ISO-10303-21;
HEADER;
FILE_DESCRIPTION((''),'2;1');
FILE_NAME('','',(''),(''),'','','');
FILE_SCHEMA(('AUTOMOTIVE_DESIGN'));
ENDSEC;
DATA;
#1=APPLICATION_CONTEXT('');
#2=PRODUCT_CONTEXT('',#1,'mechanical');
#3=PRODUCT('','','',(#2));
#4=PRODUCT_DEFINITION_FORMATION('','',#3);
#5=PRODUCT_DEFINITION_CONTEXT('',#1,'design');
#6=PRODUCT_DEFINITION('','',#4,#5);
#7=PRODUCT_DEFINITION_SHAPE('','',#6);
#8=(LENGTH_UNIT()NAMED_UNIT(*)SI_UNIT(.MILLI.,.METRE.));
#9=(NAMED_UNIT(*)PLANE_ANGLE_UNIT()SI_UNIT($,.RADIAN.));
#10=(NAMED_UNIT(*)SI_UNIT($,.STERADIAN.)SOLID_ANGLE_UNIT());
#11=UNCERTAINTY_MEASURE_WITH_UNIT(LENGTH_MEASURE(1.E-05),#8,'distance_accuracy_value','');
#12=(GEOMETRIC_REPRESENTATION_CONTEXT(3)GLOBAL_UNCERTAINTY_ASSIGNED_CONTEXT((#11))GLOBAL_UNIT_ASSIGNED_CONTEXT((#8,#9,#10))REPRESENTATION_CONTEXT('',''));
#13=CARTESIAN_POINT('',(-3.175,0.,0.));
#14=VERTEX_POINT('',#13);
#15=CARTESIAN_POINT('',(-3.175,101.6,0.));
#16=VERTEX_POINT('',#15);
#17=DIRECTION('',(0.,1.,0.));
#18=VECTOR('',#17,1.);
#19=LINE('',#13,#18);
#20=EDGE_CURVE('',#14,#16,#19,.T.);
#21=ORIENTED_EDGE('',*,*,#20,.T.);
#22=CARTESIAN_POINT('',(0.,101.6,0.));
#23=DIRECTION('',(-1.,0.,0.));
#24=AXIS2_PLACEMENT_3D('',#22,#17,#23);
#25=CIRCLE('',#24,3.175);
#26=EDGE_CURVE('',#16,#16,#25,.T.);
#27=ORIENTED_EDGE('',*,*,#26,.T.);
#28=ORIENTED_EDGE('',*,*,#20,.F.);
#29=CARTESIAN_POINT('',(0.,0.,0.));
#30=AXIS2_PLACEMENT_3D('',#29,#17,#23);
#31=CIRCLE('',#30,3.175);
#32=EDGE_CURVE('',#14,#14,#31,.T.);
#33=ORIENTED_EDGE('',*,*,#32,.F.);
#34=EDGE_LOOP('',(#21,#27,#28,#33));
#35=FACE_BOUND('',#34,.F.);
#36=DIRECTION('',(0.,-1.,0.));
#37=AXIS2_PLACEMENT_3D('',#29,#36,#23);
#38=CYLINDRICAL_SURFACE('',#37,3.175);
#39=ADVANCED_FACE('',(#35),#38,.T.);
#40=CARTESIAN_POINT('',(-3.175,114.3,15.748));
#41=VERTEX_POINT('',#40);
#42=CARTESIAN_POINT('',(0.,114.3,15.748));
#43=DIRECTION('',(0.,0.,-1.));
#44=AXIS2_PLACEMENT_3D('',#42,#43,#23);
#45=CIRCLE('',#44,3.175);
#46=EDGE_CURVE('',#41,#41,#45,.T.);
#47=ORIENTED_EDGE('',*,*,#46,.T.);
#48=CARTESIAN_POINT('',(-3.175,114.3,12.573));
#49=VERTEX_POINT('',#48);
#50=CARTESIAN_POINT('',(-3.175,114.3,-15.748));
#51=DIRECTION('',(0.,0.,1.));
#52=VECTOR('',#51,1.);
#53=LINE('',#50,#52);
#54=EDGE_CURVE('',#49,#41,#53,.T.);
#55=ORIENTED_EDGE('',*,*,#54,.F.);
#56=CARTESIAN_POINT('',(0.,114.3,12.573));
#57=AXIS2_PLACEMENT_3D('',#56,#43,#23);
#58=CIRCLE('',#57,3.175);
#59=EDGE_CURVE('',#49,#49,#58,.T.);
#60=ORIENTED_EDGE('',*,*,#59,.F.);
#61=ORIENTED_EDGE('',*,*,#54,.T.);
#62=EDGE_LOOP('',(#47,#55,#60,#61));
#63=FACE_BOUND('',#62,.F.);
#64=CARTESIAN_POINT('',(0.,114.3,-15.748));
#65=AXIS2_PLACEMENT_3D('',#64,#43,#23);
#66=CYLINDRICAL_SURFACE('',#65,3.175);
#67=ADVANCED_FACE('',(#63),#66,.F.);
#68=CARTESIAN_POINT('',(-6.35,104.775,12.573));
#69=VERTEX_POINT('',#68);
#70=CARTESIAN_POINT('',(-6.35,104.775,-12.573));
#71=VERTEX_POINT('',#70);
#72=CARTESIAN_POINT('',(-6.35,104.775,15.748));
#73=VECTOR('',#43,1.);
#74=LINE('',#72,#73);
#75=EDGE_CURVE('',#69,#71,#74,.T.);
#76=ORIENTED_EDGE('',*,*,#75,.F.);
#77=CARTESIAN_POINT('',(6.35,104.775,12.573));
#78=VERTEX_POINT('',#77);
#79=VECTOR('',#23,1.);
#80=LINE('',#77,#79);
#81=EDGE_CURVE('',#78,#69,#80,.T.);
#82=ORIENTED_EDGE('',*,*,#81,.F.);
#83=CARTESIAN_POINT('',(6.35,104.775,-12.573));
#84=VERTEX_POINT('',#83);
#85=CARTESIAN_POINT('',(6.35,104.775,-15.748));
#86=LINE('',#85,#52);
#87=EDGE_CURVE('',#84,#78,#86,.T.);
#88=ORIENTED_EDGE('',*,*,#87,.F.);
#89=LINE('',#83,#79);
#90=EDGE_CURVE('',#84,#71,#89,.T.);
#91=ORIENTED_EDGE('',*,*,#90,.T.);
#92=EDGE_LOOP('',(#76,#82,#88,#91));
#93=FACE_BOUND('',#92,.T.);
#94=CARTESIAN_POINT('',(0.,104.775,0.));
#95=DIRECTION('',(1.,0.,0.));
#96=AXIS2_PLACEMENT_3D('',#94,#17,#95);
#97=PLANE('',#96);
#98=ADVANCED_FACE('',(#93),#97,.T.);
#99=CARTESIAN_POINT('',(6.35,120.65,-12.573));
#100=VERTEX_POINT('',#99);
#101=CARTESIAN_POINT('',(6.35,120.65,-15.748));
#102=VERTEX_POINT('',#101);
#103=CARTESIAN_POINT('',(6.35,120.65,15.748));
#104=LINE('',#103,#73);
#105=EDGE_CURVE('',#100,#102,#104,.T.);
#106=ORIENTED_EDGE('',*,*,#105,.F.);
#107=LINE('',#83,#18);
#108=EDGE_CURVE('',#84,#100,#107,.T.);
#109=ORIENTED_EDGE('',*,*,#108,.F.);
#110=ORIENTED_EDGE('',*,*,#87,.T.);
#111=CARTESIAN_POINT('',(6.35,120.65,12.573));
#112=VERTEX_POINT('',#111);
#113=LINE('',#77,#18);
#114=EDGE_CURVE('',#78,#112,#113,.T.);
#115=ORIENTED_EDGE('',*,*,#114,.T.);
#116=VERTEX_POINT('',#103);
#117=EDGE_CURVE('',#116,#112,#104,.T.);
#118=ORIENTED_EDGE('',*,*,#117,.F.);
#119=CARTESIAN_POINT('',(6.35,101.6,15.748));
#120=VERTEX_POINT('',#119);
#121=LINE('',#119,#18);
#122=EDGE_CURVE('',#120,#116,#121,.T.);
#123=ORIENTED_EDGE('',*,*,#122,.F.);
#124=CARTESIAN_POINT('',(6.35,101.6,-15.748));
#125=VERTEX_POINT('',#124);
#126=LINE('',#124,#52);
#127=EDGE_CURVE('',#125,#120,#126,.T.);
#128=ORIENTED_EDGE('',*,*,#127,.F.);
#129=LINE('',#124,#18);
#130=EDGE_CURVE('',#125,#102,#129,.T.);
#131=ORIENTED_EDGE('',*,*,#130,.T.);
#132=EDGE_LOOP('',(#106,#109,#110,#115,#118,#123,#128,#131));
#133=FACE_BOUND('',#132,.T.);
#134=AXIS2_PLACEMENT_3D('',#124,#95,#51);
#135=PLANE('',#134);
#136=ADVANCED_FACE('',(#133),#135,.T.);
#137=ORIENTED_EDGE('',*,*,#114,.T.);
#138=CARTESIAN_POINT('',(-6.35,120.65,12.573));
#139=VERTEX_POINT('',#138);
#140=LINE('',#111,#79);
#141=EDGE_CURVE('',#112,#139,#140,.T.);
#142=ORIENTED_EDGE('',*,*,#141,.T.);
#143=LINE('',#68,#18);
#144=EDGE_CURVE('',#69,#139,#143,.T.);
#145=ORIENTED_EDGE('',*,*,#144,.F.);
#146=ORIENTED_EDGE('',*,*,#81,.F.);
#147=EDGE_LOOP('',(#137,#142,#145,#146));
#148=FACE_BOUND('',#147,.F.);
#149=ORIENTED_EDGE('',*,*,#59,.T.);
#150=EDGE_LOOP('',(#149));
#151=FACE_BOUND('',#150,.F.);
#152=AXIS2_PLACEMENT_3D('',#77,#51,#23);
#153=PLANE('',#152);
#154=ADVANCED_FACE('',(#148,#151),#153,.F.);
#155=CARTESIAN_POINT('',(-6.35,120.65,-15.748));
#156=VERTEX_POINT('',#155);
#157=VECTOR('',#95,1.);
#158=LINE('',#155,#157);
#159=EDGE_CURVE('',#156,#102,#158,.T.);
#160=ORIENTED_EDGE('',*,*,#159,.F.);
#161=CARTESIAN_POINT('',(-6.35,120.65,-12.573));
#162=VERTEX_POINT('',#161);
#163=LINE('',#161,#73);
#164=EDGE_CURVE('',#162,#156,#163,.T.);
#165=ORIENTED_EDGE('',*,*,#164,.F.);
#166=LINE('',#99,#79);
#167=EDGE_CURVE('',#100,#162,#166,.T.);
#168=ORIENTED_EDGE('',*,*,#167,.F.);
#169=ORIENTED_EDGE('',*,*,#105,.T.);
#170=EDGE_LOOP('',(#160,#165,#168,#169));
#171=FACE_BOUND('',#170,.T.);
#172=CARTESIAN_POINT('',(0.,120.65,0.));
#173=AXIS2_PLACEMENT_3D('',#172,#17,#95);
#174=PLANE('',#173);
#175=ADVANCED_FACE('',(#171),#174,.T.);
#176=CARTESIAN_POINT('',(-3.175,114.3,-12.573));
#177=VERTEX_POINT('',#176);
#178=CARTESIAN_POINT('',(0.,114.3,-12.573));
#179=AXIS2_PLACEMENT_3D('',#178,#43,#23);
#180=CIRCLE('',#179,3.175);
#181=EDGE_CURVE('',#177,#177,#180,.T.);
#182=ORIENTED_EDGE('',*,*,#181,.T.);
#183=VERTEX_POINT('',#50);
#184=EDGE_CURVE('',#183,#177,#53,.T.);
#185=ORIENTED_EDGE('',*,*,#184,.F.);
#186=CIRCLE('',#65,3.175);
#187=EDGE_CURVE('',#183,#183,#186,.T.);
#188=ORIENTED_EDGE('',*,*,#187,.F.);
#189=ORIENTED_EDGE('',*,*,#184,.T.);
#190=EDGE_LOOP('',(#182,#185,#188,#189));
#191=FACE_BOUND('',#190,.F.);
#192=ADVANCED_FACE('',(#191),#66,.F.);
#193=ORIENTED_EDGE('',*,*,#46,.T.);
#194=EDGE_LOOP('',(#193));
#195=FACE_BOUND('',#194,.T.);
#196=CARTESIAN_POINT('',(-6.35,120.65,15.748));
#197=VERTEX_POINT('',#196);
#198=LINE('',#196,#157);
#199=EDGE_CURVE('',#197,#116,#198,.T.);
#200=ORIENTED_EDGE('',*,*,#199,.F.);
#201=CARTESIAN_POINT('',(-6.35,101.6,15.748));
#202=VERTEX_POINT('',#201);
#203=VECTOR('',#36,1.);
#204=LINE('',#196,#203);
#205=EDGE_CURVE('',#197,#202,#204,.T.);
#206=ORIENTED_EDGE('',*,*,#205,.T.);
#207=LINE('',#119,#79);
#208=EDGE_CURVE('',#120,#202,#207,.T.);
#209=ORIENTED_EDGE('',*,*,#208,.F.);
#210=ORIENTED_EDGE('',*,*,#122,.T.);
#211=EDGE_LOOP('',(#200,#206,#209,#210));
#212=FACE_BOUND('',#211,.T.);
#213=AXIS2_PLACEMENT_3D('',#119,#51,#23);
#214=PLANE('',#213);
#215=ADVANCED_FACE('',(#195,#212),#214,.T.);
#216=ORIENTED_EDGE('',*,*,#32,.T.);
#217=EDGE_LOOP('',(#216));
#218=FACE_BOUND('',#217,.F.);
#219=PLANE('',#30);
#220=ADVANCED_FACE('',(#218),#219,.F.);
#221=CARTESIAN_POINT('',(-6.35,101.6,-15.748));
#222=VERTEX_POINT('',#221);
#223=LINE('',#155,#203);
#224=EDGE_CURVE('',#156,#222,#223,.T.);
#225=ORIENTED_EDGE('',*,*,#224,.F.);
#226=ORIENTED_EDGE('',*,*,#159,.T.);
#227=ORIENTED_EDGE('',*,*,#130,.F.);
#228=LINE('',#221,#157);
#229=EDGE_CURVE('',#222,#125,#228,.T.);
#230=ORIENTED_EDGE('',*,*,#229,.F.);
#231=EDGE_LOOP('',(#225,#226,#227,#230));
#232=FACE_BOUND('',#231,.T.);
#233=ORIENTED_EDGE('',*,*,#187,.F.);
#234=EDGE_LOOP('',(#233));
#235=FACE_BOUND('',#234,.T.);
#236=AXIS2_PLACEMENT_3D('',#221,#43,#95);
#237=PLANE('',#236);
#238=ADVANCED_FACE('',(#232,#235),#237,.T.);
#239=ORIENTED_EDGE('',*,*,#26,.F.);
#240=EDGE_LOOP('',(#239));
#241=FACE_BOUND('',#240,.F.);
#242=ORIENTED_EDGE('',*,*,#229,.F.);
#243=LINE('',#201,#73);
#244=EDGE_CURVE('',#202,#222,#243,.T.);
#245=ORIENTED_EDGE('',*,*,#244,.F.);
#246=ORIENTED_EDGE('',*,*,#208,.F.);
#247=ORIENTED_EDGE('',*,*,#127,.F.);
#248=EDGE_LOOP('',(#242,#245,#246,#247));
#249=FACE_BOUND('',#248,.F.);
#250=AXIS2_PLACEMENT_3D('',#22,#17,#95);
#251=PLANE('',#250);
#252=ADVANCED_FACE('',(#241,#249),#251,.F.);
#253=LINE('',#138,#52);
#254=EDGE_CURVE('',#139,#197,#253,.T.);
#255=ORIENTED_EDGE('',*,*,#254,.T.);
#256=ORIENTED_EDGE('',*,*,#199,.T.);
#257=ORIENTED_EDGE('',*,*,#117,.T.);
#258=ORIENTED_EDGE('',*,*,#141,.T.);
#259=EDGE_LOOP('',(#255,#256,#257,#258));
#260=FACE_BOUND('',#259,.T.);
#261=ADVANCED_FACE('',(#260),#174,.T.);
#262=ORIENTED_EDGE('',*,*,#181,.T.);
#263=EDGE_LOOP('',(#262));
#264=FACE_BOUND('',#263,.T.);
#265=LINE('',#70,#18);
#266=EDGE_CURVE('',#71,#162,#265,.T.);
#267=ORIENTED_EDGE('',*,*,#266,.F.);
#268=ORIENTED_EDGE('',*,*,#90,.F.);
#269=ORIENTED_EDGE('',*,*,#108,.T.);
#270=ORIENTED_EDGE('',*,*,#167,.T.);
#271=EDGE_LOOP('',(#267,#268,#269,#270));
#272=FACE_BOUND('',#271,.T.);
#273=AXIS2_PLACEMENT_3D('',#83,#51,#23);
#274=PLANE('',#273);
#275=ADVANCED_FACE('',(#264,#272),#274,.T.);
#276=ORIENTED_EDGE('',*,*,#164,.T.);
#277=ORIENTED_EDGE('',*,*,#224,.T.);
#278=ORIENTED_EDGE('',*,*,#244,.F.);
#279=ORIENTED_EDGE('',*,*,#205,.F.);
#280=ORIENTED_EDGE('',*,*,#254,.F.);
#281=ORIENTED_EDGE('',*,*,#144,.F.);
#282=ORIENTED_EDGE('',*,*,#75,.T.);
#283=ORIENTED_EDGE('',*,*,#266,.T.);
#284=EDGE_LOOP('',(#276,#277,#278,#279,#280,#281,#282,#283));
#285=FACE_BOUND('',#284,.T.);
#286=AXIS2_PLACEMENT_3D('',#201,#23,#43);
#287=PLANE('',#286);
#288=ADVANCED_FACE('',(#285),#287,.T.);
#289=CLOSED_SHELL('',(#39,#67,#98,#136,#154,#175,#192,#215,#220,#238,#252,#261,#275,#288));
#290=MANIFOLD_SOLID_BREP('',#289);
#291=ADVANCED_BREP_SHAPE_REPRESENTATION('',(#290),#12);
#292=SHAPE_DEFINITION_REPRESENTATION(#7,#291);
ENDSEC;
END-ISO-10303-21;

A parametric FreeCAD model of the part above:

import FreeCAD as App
import Part
import Sketcher
Q = App.Units.Quantity


def add_polygon(sketch, points):
    """Adds a closed chain of lines whose ends are joined by coincident constraints."""
    first, n = sketch.GeometryCount, len(points)
    for a, b in zip(points, points[1:] + points[:1]):
        sketch.addGeometry(Part.LineSegment(App.Vector(*a, 0), App.Vector(*b, 0)), False)
    for i in range(n):
        sketch.addConstraint(Sketcher.Constraint("Coincident", first + i, 2, first + (i + 1) % n, 1))

doc = App.newDocument("Part")
params = doc.addObject("Spreadsheet::Sheet", "Params")
for row, (alias, value) in enumerate([
    ("sketch1_diameter", "0.25 in"),
    ("pad1_length", "4 in"),
    ("sketch2_width", "0.5 in"),
    ("sketch2_height", "1.24 in"),
    ("pad2_length", "0.125 in"),
    ("sketch3_height", "0.125 in"),
    ("sketch3_width", "0.5 in"),
    ("pad3_length", "0.625 in"),
    ("sketch4_diameter", "0.25 in"),
    ("pocket1_length", "2 in"),
], start=1):
    params.set(f"A{row}", alias)
    params.set(f"B{row}", "=" + value)
    params.setAlias(f"B{row}", alias)

body = doc.addObject("PartDesign::Body", "Body")

# Sketch on XZ plane
sketch1 = body.newObject("Sketcher::SketchObject", "Sketch")
sketch1.AttachmentSupport = (doc.getObject("XZ_Plane"), [""])
sketch1.MapMode = "FlatFace"
sketch1.addGeometry(Part.Circle(App.Vector(0, 0, 0), App.Vector(0, 0, 1), 3.2), False)
sketch1.addConstraint([
    Sketcher.Constraint("Coincident", 0, 3, -1, 1),
    Sketcher.Constraint("Diameter", 0, Q("0.25 in")),
])
sketch1.setExpression("Constraints[1]", "Params.sketch1_diameter")
pad1 = body.newObject("PartDesign::Pad", "Pad")
pad1.Profile = sketch1
pad1.setExpression("Length", "Params.pad1_length")
pad1.Reversed = True

# Sketch on XZ plane
sketch2 = body.newObject("Sketcher::SketchObject", "Sketch001")
sketch2.AttachmentSupport = (doc.getObject("XZ_Plane"), [""])
sketch2.MapMode = "FlatFace"
sketch2.AttachmentOffset = App.Placement(App.Vector(0, 0, -4 * 25.4), App.Rotation())
add_polygon(sketch2, [(-6, 16), (6, 16), (6, -16), (-6, -16)])  # lines 0-3
sketch2.addConstraint([
    Sketcher.Constraint("Horizontal", 0),
    Sketcher.Constraint("Vertical", 1),
    Sketcher.Constraint("Horizontal", 2),
    Sketcher.Constraint("Vertical", 3),
    Sketcher.Constraint("Symmetric", 0, 2, 2, 2, -1, 1),
    Sketcher.Constraint("DistanceX", 0, 1, 0, 2, Q("0.5 in")),
    Sketcher.Constraint("DistanceY", 1, 2, 1, 1, Q("1.24 in")),
])
sketch2.setExpression("Constraints[9]", "Params.sketch2_width")
sketch2.setExpression("Constraints[10]", "Params.sketch2_height")
pad2 = body.newObject("PartDesign::Pad", "Pad001")
pad2.Profile = sketch2
pad2.setExpression("Length", "Params.pad2_length")
pad2.Reversed = True

# Sketch on XZ plane
sketch3 = body.newObject("Sketcher::SketchObject", "Sketch002")
sketch3.AttachmentSupport = (doc.getObject("XZ_Plane"), [""])
sketch3.MapMode = "FlatFace"
sketch3.AttachmentOffset = App.Placement(App.Vector(0, 0, -4.125 * 25.4), App.Rotation())
add_polygon(sketch3, [(-6.3, 15.7), (6.3, 15.7), (6.3, 12.6), (-6.3, 12.6)])  # lines 0-3
add_polygon(sketch3, [(-6.3, -12.6), (6.3, -12.6), (6.3, -15.7), (-6.3, -15.7)])  # lines 4-7
sketch3.addConstraint([
    Sketcher.Constraint("Horizontal", 0),
    Sketcher.Constraint("Vertical", 1),
    Sketcher.Constraint("Horizontal", 2),
    Sketcher.Constraint("Vertical", 3),
    Sketcher.Constraint("Horizontal", 4),
    Sketcher.Constraint("Vertical", 5),
    Sketcher.Constraint("Horizontal", 6),
    Sketcher.Constraint("Vertical", 7),
    Sketcher.Constraint("Symmetric", 2, 2, 4, 2, -1, 1),
    Sketcher.Constraint("Symmetric", 0, 2, 6, 2, -1, 1),
    Sketcher.Constraint("Vertical", 1, 2, 4, 2),
    Sketcher.Constraint("DistanceY", 1, 2, 1, 1, Q("0.125 in")),
    Sketcher.Constraint("DistanceX", 0, 1, 0, 2, Q("0.5 in")),
    Sketcher.Constraint("DistanceY", -1, 1, 0, 2, Q("0.62 in")),
])
sketch3.setExpression("Constraints[19]", "Params.sketch3_height")
sketch3.setExpression("Constraints[20]", "Params.sketch3_width")
pad3 = body.newObject("PartDesign::Pad", "Pad002")
pad3.Profile = sketch3
pad3.setExpression("Length", "Params.pad3_length")
pad3.Reversed = True

# Sketch on XY plane
sketch4 = body.newObject("Sketcher::SketchObject", "Sketch003")
sketch4.AttachmentSupport = (doc.getObject("XY_Plane"), [""])
sketch4.MapMode = "FlatFace"
sketch4.AttachmentOffset = App.Placement(App.Vector(0, 0, -0.62 * 25.4), App.Rotation())
sketch4.addGeometry(Part.Circle(App.Vector(0, 114.3, 0), App.Vector(0, 0, 1), 3.2), False)
sketch4.addConstraint([
    Sketcher.Constraint("PointOnObject", 0, 3, -2),
    Sketcher.Constraint("Diameter", 0, Q("0.25 in")),
    Sketcher.Constraint("DistanceY", -1, 1, 0, 3, Q("4.5 in")),
])
sketch4.setExpression("Constraints[1]", "Params.sketch4_diameter")
pocket1 = body.newObject("PartDesign::Pocket", "Pocket")
pocket1.Profile = sketch4
pocket1.setExpression("Length", "Params.pocket1_length")
pocket1.Reversed = True

doc.recompute()
